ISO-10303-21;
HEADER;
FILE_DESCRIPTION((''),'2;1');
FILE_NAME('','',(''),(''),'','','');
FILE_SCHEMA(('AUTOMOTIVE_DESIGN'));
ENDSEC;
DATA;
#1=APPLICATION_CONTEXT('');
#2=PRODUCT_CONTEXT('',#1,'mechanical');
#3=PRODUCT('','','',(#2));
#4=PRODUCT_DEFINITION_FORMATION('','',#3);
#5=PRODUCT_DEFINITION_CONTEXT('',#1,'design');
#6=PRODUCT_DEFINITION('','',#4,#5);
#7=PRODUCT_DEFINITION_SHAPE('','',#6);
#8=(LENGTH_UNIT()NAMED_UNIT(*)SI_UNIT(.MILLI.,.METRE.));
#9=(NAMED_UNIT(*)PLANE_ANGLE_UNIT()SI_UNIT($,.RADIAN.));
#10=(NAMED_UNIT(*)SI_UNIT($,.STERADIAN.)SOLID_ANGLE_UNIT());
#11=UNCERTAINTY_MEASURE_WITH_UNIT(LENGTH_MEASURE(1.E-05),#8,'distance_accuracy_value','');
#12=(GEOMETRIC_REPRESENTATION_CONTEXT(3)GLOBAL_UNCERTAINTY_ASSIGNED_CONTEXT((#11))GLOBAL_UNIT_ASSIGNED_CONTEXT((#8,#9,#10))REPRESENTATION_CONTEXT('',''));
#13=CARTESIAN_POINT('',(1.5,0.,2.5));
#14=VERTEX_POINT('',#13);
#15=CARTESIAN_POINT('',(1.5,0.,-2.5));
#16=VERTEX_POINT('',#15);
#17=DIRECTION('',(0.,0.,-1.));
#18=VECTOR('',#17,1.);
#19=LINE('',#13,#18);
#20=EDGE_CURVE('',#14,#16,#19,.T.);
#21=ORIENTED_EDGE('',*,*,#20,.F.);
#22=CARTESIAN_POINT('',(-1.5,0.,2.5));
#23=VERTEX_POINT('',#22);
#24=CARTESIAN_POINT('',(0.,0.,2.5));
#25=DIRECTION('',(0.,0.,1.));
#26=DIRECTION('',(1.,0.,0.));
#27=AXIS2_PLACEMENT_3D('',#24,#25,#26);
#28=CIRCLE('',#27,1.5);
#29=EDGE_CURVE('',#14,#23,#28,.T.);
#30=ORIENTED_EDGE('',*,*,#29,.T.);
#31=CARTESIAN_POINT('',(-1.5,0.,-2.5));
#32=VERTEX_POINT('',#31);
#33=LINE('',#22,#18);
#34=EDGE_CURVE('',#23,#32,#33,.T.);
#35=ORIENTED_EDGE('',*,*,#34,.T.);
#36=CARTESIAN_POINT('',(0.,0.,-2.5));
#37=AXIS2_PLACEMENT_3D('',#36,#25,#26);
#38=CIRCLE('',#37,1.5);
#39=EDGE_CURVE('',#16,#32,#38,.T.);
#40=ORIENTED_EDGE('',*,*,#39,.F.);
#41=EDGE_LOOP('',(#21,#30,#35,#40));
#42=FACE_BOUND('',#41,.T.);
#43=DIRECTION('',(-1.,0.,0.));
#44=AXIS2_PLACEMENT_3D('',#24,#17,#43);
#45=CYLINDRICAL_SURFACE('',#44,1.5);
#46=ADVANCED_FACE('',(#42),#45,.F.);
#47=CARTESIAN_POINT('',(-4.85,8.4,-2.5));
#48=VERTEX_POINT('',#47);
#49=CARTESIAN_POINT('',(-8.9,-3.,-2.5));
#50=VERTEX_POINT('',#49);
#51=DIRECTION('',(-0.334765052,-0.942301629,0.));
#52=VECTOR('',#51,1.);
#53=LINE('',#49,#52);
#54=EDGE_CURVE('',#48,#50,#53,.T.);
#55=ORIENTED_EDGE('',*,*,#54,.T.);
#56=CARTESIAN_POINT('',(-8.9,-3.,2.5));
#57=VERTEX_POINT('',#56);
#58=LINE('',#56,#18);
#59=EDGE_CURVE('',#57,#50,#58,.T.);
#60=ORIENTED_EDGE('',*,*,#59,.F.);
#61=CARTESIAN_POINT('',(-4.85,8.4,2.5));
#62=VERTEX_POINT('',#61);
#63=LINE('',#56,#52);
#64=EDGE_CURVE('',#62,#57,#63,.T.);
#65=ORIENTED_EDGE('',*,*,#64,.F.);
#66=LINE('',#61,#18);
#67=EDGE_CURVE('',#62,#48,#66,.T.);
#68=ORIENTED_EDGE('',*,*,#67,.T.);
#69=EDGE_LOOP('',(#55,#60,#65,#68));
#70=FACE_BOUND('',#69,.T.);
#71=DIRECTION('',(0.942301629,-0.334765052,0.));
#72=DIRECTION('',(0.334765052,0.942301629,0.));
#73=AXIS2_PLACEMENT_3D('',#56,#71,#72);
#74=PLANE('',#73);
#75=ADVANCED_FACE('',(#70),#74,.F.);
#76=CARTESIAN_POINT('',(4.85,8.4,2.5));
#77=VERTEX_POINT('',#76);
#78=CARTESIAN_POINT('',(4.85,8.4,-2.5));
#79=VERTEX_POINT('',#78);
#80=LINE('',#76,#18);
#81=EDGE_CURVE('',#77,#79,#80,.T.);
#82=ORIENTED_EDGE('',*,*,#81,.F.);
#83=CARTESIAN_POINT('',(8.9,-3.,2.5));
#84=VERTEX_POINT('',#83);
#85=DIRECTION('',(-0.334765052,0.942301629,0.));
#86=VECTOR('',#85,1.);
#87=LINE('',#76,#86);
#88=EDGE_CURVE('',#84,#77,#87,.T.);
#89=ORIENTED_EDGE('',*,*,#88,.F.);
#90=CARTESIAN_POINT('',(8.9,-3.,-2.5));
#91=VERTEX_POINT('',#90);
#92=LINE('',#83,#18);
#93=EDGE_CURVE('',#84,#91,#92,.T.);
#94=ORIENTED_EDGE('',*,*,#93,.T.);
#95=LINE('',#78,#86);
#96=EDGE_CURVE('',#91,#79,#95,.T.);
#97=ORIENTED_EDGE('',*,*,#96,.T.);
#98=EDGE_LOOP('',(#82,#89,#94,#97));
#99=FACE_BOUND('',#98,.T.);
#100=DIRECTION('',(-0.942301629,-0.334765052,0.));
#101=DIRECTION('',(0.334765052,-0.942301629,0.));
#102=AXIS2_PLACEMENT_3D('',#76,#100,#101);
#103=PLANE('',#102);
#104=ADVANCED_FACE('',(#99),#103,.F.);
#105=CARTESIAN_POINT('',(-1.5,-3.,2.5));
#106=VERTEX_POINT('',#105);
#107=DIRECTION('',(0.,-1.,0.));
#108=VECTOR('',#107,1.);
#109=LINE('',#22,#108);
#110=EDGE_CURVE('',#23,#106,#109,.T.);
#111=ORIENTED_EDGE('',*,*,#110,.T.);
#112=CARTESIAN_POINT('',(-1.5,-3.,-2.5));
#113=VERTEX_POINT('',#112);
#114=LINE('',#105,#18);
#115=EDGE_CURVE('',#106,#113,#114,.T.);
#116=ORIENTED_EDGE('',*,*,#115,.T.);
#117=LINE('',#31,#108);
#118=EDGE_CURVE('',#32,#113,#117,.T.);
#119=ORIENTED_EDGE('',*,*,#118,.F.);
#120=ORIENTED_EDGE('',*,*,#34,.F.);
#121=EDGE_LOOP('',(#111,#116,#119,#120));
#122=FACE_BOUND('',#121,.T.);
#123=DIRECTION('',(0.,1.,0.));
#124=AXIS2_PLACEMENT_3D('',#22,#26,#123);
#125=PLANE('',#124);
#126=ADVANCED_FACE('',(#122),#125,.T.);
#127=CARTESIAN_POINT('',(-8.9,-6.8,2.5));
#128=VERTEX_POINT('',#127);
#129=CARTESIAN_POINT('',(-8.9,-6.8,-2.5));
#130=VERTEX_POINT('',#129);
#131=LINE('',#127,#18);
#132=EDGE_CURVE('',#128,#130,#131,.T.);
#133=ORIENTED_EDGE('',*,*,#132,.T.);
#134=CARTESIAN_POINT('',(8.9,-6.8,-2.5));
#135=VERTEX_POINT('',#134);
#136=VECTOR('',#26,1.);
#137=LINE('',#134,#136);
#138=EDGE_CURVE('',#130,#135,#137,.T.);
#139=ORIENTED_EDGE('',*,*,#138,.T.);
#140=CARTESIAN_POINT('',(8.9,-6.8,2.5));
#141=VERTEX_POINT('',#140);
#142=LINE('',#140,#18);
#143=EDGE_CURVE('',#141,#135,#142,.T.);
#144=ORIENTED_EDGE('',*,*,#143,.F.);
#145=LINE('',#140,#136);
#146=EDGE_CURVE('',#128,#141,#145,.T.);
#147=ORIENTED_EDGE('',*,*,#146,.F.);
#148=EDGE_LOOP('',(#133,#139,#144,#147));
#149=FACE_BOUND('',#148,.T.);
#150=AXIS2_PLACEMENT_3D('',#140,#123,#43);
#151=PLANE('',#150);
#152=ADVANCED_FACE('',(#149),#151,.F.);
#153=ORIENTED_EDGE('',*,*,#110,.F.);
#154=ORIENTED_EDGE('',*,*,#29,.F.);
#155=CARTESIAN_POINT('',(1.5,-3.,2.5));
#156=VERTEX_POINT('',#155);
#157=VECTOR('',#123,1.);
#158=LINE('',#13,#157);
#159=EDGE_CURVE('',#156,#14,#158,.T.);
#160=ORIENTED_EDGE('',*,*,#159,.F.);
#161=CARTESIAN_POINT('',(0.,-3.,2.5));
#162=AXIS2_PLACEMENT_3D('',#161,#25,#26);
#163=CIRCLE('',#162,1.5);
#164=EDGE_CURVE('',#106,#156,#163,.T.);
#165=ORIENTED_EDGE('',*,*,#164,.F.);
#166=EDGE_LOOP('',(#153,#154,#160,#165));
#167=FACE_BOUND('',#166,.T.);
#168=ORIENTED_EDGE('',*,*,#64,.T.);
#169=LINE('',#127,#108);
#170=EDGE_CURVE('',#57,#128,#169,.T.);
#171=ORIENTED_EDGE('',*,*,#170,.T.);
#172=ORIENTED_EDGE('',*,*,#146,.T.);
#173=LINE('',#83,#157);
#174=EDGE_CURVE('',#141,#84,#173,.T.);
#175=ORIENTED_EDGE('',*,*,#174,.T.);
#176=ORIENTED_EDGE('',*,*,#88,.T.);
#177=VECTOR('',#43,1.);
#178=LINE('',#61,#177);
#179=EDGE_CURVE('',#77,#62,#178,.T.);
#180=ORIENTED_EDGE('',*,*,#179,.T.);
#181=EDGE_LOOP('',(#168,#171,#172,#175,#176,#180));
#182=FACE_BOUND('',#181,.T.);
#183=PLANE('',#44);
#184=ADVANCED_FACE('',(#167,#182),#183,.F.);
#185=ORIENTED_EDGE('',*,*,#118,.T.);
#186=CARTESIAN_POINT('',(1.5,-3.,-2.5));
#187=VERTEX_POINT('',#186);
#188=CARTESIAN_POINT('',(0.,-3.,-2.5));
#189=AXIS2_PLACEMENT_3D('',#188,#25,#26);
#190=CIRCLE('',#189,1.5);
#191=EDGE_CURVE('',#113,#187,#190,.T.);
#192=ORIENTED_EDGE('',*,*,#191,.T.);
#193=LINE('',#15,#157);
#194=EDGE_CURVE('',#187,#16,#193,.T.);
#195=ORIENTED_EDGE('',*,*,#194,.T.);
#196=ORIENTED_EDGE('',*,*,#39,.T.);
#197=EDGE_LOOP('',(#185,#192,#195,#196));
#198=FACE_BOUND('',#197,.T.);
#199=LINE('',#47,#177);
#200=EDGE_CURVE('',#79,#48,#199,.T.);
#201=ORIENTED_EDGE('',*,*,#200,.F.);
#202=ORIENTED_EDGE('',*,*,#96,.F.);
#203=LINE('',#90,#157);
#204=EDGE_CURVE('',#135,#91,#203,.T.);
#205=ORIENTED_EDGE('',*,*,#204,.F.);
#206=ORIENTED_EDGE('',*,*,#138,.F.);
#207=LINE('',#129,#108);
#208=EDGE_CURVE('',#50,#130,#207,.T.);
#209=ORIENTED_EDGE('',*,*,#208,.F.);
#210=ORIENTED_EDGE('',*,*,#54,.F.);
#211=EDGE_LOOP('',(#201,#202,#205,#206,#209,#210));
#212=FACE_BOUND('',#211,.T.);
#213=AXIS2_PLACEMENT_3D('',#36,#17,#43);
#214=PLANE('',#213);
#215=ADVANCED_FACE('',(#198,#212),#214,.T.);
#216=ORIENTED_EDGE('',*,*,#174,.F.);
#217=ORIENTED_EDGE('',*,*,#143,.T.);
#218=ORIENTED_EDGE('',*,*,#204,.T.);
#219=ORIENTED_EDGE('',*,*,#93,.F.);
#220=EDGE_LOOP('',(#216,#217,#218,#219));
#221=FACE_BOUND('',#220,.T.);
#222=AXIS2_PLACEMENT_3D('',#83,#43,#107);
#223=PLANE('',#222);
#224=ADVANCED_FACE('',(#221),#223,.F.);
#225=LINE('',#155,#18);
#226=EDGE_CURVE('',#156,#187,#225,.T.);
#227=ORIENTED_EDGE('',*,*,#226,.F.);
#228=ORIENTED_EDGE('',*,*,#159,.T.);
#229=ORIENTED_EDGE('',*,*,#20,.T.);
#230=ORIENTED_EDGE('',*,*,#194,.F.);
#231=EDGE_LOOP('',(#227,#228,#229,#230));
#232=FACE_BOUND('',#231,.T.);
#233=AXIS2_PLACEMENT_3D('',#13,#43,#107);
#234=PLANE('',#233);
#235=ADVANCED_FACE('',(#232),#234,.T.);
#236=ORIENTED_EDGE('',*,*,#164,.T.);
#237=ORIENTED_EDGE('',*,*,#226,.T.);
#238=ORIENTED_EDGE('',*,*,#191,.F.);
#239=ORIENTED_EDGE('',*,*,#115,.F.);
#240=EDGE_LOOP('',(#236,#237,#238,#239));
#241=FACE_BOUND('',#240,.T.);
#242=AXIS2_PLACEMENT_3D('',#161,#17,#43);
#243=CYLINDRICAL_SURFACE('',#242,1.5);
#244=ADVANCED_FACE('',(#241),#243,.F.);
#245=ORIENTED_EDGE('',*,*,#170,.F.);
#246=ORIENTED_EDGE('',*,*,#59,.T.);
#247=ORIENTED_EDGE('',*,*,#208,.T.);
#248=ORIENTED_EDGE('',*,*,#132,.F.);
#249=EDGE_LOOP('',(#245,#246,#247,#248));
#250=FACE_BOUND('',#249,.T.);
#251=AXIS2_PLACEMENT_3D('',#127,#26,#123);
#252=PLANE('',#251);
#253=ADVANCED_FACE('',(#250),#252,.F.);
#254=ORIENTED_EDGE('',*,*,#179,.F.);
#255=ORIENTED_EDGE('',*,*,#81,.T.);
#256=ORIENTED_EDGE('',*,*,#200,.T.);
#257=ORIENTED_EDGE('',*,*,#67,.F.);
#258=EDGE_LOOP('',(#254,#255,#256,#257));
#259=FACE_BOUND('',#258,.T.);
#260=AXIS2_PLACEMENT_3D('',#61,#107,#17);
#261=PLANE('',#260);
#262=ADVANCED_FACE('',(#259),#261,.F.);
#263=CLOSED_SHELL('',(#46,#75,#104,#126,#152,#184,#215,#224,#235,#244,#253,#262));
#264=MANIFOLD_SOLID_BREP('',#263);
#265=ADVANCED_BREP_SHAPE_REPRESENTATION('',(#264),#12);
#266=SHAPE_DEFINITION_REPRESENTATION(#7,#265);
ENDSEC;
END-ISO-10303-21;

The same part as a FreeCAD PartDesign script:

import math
import FreeCAD as App
import Part
import Sketcher

V = App.Vector
Q = App.Units.Quantity

doc = App.newDocument("Part")
body = doc.addObject("PartDesign::Body", "Body")

# Sketch on XY plane
sketch1 = body.newObject("Sketcher::SketchObject", "Sketch")
sketch1.AttachmentSupport = (doc.getObject("XY_Plane"), [""])
sketch1.MapMode = "FlatFace"
sketch1.addGeometry([
    Part.LineSegment(V(4.8, 8.4, 0), V(-4.8, 8.4, 0)),  # 0
    Part.LineSegment(V(-4.8, 8.4, 0), V(-8.9, -3, 0)),  # 1
    Part.LineSegment(V(-8.9, -3, 0), V(-8.9, -6.8, 0)),  # 2
    Part.LineSegment(V(-8.9, -6.8, 0), V(8.9, -6.8, 0)),  # 3
    Part.LineSegment(V(8.9, -6.8, 0), V(8.9, -3, 0)),  # 4
    Part.LineSegment(V(8.9, -3, 0), V(4.8, 8.4, 0)),  # 5
    Part.LineSegment(V(1.5, 0, 0), V(1.5, -3, 0)),  # 6
    Part.ArcOfCircle(Part.Circle(V(0, -3, 0), V(0, 0, 1), 1.5), math.radians(180), math.radians(360)),  # 7
    Part.LineSegment(V(-1.5, -3, 0), V(-1.5, 0, 0)),  # 8
    Part.ArcOfCircle(Part.Circle(V(0, 0, 0), V(0, 0, 1), 1.5), math.radians(0), math.radians(180)),  # 9
], False)
sketch1.addConstraint([
    Sketcher.Constraint("Coincident", 0, 2, 1, 1),
    Sketcher.Constraint("Coincident", 1, 2, 2, 1),
    Sketcher.Constraint("Coincident", 2, 2, 3, 1),
    Sketcher.Constraint("Coincident", 3, 2, 4, 1),
    Sketcher.Constraint("Coincident", 4, 2, 5, 1),
    Sketcher.Constraint("Coincident", 5, 2, 0, 1),
    Sketcher.Constraint("Tangent", 6, 2, 7, 2),
    Sketcher.Constraint("Tangent", 7, 1, 8, 1),
    Sketcher.Constraint("Tangent", 8, 2, 9, 2),
    Sketcher.Constraint("Tangent", 9, 1, 6, 1),
    Sketcher.Constraint("Horizontal", 0),
    Sketcher.Constraint("Vertical", 2),
    Sketcher.Constraint("Horizontal", 3),
    Sketcher.Constraint("Vertical", 4),
    Sketcher.Constraint("Vertical", 6),
    Sketcher.Constraint("Vertical", 8),
    Sketcher.Constraint("Coincident", 9, 3, -1, 1),
    Sketcher.Constraint("Symmetric", 1, 2, 4, 2, -2),
    Sketcher.Constraint("Horizontal", 7, 3, 1, 2),
    Sketcher.Constraint("Equal", 1, 5),
    Sketcher.Constraint("Radius", 7, Q("1.5 mm")),
    Sketcher.Constraint("DistanceY", 6, 2, 6, 1, Q("3 mm")),
    Sketcher.Constraint("DistanceX", 0, 2, 0, 1, Q("9.7 mm")),
    Sketcher.Constraint("DistanceX", 3, 1, 3, 2, Q("17.8 mm")),
    Sketcher.Constraint("DistanceY", 2, 2, 2, 1, Q("3.8 mm")),
    Sketcher.Constraint("DistanceY", -1, 1, 0, 2, Q("8.4 mm")),
])
pad1 = body.newObject("PartDesign::Pad", "Pad")
pad1.Profile = sketch1
pad1.Length = 5
pad1.Midplane = True

doc.recompute()
